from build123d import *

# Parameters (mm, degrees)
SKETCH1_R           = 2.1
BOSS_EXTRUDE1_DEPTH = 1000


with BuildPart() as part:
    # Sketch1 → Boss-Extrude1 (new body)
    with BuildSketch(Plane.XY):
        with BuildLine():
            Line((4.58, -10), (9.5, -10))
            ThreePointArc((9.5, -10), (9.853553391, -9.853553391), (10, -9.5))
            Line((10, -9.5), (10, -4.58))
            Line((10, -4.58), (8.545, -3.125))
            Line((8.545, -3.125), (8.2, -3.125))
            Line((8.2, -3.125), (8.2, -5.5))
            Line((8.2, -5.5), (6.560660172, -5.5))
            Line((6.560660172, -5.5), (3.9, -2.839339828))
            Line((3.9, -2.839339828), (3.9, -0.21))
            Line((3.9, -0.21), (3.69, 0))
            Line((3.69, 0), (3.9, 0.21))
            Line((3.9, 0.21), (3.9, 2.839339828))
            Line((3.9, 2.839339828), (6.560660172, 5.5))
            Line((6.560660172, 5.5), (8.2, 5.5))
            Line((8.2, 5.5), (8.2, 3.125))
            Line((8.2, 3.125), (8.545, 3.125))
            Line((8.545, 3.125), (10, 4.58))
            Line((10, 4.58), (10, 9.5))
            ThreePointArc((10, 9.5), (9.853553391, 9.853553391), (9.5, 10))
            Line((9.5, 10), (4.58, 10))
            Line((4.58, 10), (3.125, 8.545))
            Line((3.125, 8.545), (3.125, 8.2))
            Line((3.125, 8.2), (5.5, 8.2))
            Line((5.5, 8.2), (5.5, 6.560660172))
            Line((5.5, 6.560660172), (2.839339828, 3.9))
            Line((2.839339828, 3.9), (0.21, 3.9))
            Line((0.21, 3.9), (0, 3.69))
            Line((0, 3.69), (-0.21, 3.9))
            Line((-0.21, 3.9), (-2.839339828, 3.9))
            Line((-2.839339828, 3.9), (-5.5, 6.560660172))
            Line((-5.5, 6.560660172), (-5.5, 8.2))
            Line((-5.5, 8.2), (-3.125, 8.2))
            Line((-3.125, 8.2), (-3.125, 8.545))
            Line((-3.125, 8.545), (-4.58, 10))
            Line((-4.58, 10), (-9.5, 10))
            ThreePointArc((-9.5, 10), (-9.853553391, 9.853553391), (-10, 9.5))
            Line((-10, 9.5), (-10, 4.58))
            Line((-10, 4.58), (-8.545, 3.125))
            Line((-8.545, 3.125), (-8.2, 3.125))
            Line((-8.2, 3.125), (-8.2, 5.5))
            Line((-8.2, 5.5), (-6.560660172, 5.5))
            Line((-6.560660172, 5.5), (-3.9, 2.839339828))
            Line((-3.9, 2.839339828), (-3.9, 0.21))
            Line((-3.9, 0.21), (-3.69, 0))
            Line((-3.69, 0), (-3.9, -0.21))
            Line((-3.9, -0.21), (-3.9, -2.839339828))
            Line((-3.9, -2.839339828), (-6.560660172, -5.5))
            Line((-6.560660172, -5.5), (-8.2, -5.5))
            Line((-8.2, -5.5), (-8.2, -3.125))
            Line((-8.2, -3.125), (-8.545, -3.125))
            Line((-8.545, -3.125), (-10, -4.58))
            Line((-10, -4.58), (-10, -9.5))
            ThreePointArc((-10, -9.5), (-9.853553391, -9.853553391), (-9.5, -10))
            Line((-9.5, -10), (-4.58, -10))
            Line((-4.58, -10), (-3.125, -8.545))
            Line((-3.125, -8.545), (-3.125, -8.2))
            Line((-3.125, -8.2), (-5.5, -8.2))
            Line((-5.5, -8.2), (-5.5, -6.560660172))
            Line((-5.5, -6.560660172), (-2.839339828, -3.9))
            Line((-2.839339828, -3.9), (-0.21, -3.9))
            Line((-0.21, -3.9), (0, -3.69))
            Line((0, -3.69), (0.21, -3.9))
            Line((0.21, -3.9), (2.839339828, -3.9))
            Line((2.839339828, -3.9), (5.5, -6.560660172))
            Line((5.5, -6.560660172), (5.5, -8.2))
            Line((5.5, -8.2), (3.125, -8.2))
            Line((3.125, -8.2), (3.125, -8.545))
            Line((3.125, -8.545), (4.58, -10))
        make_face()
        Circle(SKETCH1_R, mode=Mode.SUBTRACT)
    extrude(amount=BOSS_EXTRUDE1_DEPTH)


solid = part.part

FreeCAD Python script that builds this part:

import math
import FreeCAD as App
import Part
import Sketcher

V = App.Vector
Q = App.Units.Quantity

doc = App.newDocument("Part")
body = doc.addObject("PartDesign::Body", "Body")

# Sketch on XY plane
sketch1 = doc.addObject("Sketcher::SketchObject", "Sketch")
body.addObject(sketch1)
sketch1.AttachmentSupport = (doc.XY_Plane, [""])
sketch1.MapMode = "FlatFace"
sketch1.addGeometry([
    Part.LineSegment(V(4.58, -10, 0), V(9.5, -10, 0)),  # 0
    Part.ArcOfCircle(Part.Circle(V(9.5, -9.5, 0), V(0, 0, 1), 0.5), math.radians(-90), math.radians(0)),  # 1
    Part.LineSegment(V(10, -9.5, 0), V(10, -4.58, 0)),  # 2
    Part.LineSegment(V(10, -4.58, 0), V(8.54, -3.12, 0)),  # 3
    Part.LineSegment(V(8.54, -3.12, 0), V(8.2, -3.12, 0)),  # 4
    Part.LineSegment(V(8.2, -3.12, 0), V(8.2, -5.5, 0)),  # 5
    Part.LineSegment(V(8.2, -5.5, 0), V(6.56, -5.5, 0)),  # 6
    Part.LineSegment(V(6.56, -5.5, 0), V(3.9, -2.84, 0)),  # 7
    Part.LineSegment(V(3.9, -2.84, 0), V(3.9, -0.21, 0)),  # 8
    Part.LineSegment(V(3.9, -0.21, 0), V(3.69, 0, 0)),  # 9
    Part.LineSegment(V(3.69, 0, 0), V(3.9, 0.21, 0)),  # 10
    Part.LineSegment(V(3.9, 0.21, 0), V(3.9, 2.84, 0)),  # 11
    Part.LineSegment(V(3.9, 2.84, 0), V(6.56, 5.5, 0)),  # 12
    Part.LineSegment(V(6.56, 5.5, 0), V(8.2, 5.5, 0)),  # 13
    Part.LineSegment(V(8.2, 5.5, 0), V(8.2, 3.12, 0)),  # 14
    Part.LineSegment(V(8.2, 3.12, 0), V(8.54, 3.12, 0)),  # 15
    Part.LineSegment(V(8.54, 3.12, 0), V(10, 4.58, 0)),  # 16
    Part.LineSegment(V(10, 4.58, 0), V(10, 9.5, 0)),  # 17
    Part.ArcOfCircle(Part.Circle(V(9.5, 9.5, 0), V(0, 0, 1), 0.5), math.radians(0), math.radians(90)),  # 18
    Part.LineSegment(V(9.5, 10, 0), V(4.58, 10, 0)),  # 19
    Part.LineSegment(V(4.58, 10, 0), V(3.12, 8.54, 0)),  # 20
    Part.LineSegment(V(3.12, 8.54, 0), V(3.12, 8.2, 0)),  # 21
    Part.LineSegment(V(3.12, 8.2, 0), V(5.5, 8.2, 0)),  # 22
    Part.LineSegment(V(5.5, 8.2, 0), V(5.5, 6.56, 0)),  # 23
    Part.LineSegment(V(5.5, 6.56, 0), V(2.84, 3.9, 0)),  # 24
    Part.LineSegment(V(2.84, 3.9, 0), V(0.21, 3.9, 0)),  # 25
    Part.LineSegment(V(0.21, 3.9, 0), V(0, 3.69, 0)),  # 26
    Part.LineSegment(V(0, 3.69, 0), V(-0.21, 3.9, 0)),  # 27
    Part.LineSegment(V(-0.21, 3.9, 0), V(-2.84, 3.9, 0)),  # 28
    Part.LineSegment(V(-2.84, 3.9, 0), V(-5.5, 6.56, 0)),  # 29
    Part.LineSegment(V(-5.5, 6.56, 0), V(-5.5, 8.2, 0)),  # 30
    Part.LineSegment(V(-5.5, 8.2, 0), V(-3.12, 8.2, 0)),  # 31
    Part.LineSegment(V(-3.12, 8.2, 0), V(-3.12, 8.54, 0)),  # 32
    Part.LineSegment(V(-3.12, 8.54, 0), V(-4.58, 10, 0)),  # 33
    Part.LineSegment(V(-4.58, 10, 0), V(-9.5, 10, 0)),  # 34
    Part.ArcOfCircle(Part.Circle(V(-9.5, 9.5, 0), V(0, 0, 1), 0.5), math.radians(90), math.radians(180)),  # 35
    Part.LineSegment(V(-10, 9.5, 0), V(-10, 4.58, 0)),  # 36
    Part.LineSegment(V(-10, 4.58, 0), V(-8.54, 3.12, 0)),  # 37
    Part.LineSegment(V(-8.54, 3.12, 0), V(-8.2, 3.12, 0)),  # 38
    Part.LineSegment(V(-8.2, 3.12, 0), V(-8.2, 5.5, 0)),  # 39
    Part.LineSegment(V(-8.2, 5.5, 0), V(-6.56, 5.5, 0)),  # 40
    Part.LineSegment(V(-6.56, 5.5, 0), V(-3.9, 2.84, 0)),  # 41
    Part.LineSegment(V(-3.9, 2.84, 0), V(-3.9, 0.21, 0)),  # 42
    Part.LineSegment(V(-3.9, 0.21, 0), V(-3.69, 0, 0)),  # 43
    Part.LineSegment(V(-3.69, 0, 0), V(-3.9, -0.21, 0)),  # 44
    Part.LineSegment(V(-3.9, -0.21, 0), V(-3.9, -2.84, 0)),  # 45
    Part.LineSegment(V(-3.9, -2.84, 0), V(-6.56, -5.5, 0)),  # 46
    Part.LineSegment(V(-6.56, -5.5, 0), V(-8.2, -5.5, 0)),  # 47
    Part.LineSegment(V(-8.2, -5.5, 0), V(-8.2, -3.12, 0)),  # 48
    Part.LineSegment(V(-8.2, -3.12, 0), V(-8.54, -3.12, 0)),  # 49
    Part.LineSegment(V(-8.54, -3.12, 0), V(-10, -4.58, 0)),  # 50
    Part.LineSegment(V(-10, -4.58, 0), V(-10, -9.5, 0)),  # 51
    Part.ArcOfCircle(Part.Circle(V(-9.5, -9.5, 0), V(0, 0, 1), 0.5), math.radians(180), math.radians(270)),  # 52
    Part.LineSegment(V(-9.5, -10, 0), V(-4.58, -10, 0)),  # 53
    Part.LineSegment(V(-4.58, -10, 0), V(-3.12, -8.54, 0)),  # 54
    Part.LineSegment(V(-3.12, -8.54, 0), V(-3.12, -8.2, 0)),  # 55
    Part.LineSegment(V(-3.12, -8.2, 0), V(-5.5, -8.2, 0)),  # 56
    Part.LineSegment(V(-5.5, -8.2, 0), V(-5.5, -6.56, 0)),  # 57
    Part.LineSegment(V(-5.5, -6.56, 0), V(-2.84, -3.9, 0)),  # 58
    Part.LineSegment(V(-2.84, -3.9, 0), V(-0.21, -3.9, 0)),  # 59
    Part.LineSegment(V(-0.21, -3.9, 0), V(0, -3.69, 0)),  # 60
    Part.LineSegment(V(0, -3.69, 0), V(0.21, -3.9, 0)),  # 61
    Part.LineSegment(V(0.21, -3.9, 0), V(2.84, -3.9, 0)),  # 62
    Part.LineSegment(V(2.84, -3.9, 0), V(5.5, -6.56, 0)),  # 63
    Part.LineSegment(V(5.5, -6.56, 0), V(5.5, -8.2, 0)),  # 64
    Part.LineSegment(V(5.5, -8.2, 0), V(3.12, -8.2, 0)),  # 65
    Part.LineSegment(V(3.12, -8.2, 0), V(3.12, -8.54, 0)),  # 66
    Part.LineSegment(V(3.12, -8.54, 0), V(4.58, -10, 0)),  # 67
    Part.Circle(V(0, 0, 0), V(0, 0, 1), 2.1),  # 68
], False)
sketch1.addConstraint([
    Sketcher.Constraint("Tangent", 0, 2, 1, 1),
    Sketcher.Constraint("Tangent", 1, 2, 2, 1),
    Sketcher.Constraint("Coincident", 2, 2, 3, 1),
    Sketcher.Constraint("Coincident", 3, 2, 4, 1),
    Sketcher.Constraint("Coincident", 4, 2, 5, 1),
    Sketcher.Constraint("Coincident", 5, 2, 6, 1),
    Sketcher.Constraint("Coincident", 6, 2, 7, 1),
    Sketcher.Constraint("Coincident", 7, 2, 8, 1),
    Sketcher.Constraint("Coincident", 8, 2, 9, 1),
    Sketcher.Constraint("Coincident", 9, 2, 10, 1),
    Sketcher.Constraint("Coincident", 10, 2, 11, 1),
    Sketcher.Constraint("Coincident", 11, 2, 12, 1),
    Sketcher.Constraint("Coincident", 12, 2, 13, 1),
    Sketcher.Constraint("Coincident", 13, 2, 14, 1),
    Sketcher.Constraint("Coincident", 14, 2, 15, 1),
    Sketcher.Constraint("Coincident", 15, 2, 16, 1),
    Sketcher.Constraint("Coincident", 16, 2, 17, 1),
    Sketcher.Constraint("Tangent", 17, 2, 18, 1),
    Sketcher.Constraint("Tangent", 18, 2, 19, 1),
    Sketcher.Constraint("Coincident", 19, 2, 20, 1),
    Sketcher.Constraint("Coincident", 20, 2, 21, 1),
    Sketcher.Constraint("Coincident", 21, 2, 22, 1),
    Sketcher.Constraint("Coincident", 22, 2, 23, 1),
    Sketcher.Constraint("Coincident", 23, 2, 24, 1),
    Sketcher.Constraint("Coincident", 24, 2, 25, 1),
    Sketcher.Constraint("Coincident", 25, 2, 26, 1),
    Sketcher.Constraint("Coincident", 26, 2, 27, 1),
    Sketcher.Constraint("Coincident", 27, 2, 28, 1),
    Sketcher.Constraint("Coincident", 28, 2, 29, 1),
    Sketcher.Constraint("Coincident", 29, 2, 30, 1),
    Sketcher.Constraint("Coincident", 30, 2, 31, 1),
    Sketcher.Constraint("Coincident", 31, 2, 32, 1),
    Sketcher.Constraint("Coincident", 32, 2, 33, 1),
    Sketcher.Constraint("Coincident", 33, 2, 34, 1),
    Sketcher.Constraint("Tangent", 34, 2, 35, 1),
    Sketcher.Constraint("Tangent", 35, 2, 36, 1),
    Sketcher.Constraint("Coincident", 36, 2, 37, 1),
    Sketcher.Constraint("Coincident", 37, 2, 38, 1),
    Sketcher.Constraint("Coincident", 38, 2, 39, 1),
    Sketcher.Constraint("Coincident", 39, 2, 40, 1),
    Sketcher.Constraint("Coincident", 40, 2, 41, 1),
    Sketcher.Constraint("Coincident", 41, 2, 42, 1),
    Sketcher.Constraint("Coincident", 42, 2, 43, 1),
    Sketcher.Constraint("Coincident", 43, 2, 44, 1),
    Sketcher.Constraint("Coincident", 44, 2, 45, 1),
    Sketcher.Constraint("Coincident", 45, 2, 46, 1),
    Sketcher.Constraint("Coincident", 46, 2, 47, 1),
    Sketcher.Constraint("Coincident", 47, 2, 48, 1),
    Sketcher.Constraint("Coincident", 48, 2, 49, 1),
    Sketcher.Constraint("Coincident", 49, 2, 50, 1),
    Sketcher.Constraint("Coincident", 50, 2, 51, 1),
    Sketcher.Constraint("Tangent", 51, 2, 52, 1),
    Sketcher.Constraint("Tangent", 52, 2, 53, 1),
    Sketcher.Constraint("Coincident", 53, 2, 54, 1),
    Sketcher.Constraint("Coincident", 54, 2, 55, 1),
    Sketcher.Constraint("Coincident", 55, 2, 56, 1),
    Sketcher.Constraint("Coincident", 56, 2, 57, 1),
    Sketcher.Constraint("Coincident", 57, 2, 58, 1),
    Sketcher.Constraint("Coincident", 58, 2, 59, 1),
    Sketcher.Constraint("Coincident", 59, 2, 60, 1),
    Sketcher.Constraint("Coincident", 60, 2, 61, 1),
    Sketcher.Constraint("Coincident", 61, 2, 62, 1),
    Sketcher.Constraint("Coincident", 62, 2, 63, 1),
    Sketcher.Constraint("Coincident", 63, 2, 64, 1),
    Sketcher.Constraint("Coincident", 64, 2, 65, 1),
    Sketcher.Constraint("Coincident", 65, 2, 66, 1),
    Sketcher.Constraint("Coincident", 66, 2, 67, 1),
    Sketcher.Constraint("Coincident", 67, 2, 0, 1),
    Sketcher.Constraint("Horizontal", 0),
    Sketcher.Constraint("Vertical", 2),
    Sketcher.Constraint("Horizontal", 4),
    Sketcher.Constraint("Vertical", 5),
    Sketcher.Constraint("Horizontal", 6),
    Sketcher.Constraint("Vertical", 8),
    Sketcher.Constraint("Vertical", 11),
    Sketcher.Constraint("Horizontal", 13),
    Sketcher.Constraint("Vertical", 14),
    Sketcher.Constraint("Horizontal", 15),
    Sketcher.Constraint("Vertical", 17),
    Sketcher.Constraint("Horizontal", 19),
    Sketcher.Constraint("Vertical", 21),
    Sketcher.Constraint("Horizontal", 22),
    Sketcher.Constraint("Vertical", 23),
    Sketcher.Constraint("Horizontal", 25),
    Sketcher.Constraint("Horizontal", 28),
    Sketcher.Constraint("Vertical", 30),
    Sketcher.Constraint("Horizontal", 31),
    Sketcher.Constraint("Vertical", 32),
    Sketcher.Constraint("Horizontal", 34),
    Sketcher.Constraint("Vertical", 36),
    Sketcher.Constraint("Horizontal", 38),
    Sketcher.Constraint("Vertical", 39),
    Sketcher.Constraint("Horizontal", 40),
    Sketcher.Constraint("Vertical", 42),
    Sketcher.Constraint("Vertical", 45),
    Sketcher.Constraint("Horizontal", 47),
    Sketcher.Constraint("Vertical", 48),
    Sketcher.Constraint("Horizontal", 49),
    Sketcher.Constraint("Vertical", 51),
    Sketcher.Constraint("Horizontal", 53),
    Sketcher.Constraint("Vertical", 55),
    Sketcher.Constraint("Horizontal", 56),
    Sketcher.Constraint("Vertical", 57),
    Sketcher.Constraint("Horizontal", 59),
    Sketcher.Constraint("Horizontal", 62),
    Sketcher.Constraint("Vertical", 64),
    Sketcher.Constraint("Horizontal", 65),
    Sketcher.Constraint("Vertical", 66),
    Sketcher.Constraint("Coincident", 68, 3, -1, 1),
    Sketcher.Constraint("Equal", 1, 18),
    Sketcher.Constraint("Equal", 18, 35),
    Sketcher.Constraint("Equal", 35, 52),
    Sketcher.Constraint("Symmetric", 1, 3, 35, 3, -1, 1),
    Sketcher.Constraint("Symmetric", 18, 3, 52, 3, -1, 1),
    Sketcher.Constraint("Symmetric", 3, 2, 37, 2, -1, 1),
    Sketcher.Constraint("Symmetric", 5, 2, 39, 2, -1, 1),
    Sketcher.Constraint("Symmetric", 7, 2, 41, 2, -1, 1),
    Sketcher.Constraint("Symmetric", 9, 2, 43, 2, -1, 1),
    Sketcher.Constraint("Symmetric", 10, 2, 44, 2, -1, 1),
    Sketcher.Constraint("Symmetric", 12, 2, 46, 2, -1, 1),
    Sketcher.Constraint("Symmetric", 14, 2, 48, 2, -1, 1),
    Sketcher.Constraint("Symmetric", 20, 2, 54, 2, -1, 1),
    Sketcher.Constraint("Symmetric", 22, 2, 56, 2, -1, 1),
    Sketcher.Constraint("Symmetric", 24, 2, 58, 2, -1, 1),
    Sketcher.Constraint("Symmetric", 26, 2, 60, 2, -1, 1),
    Sketcher.Constraint("Symmetric", 27, 2, 61, 2, -1, 1),
    Sketcher.Constraint("Symmetric", 29, 2, 63, 2, -1, 1),
    Sketcher.Constraint("Symmetric", 31, 2, 65, 2, -1, 1),
    Sketcher.Constraint("Symmetric", 18, 3, 35, 3, -2),
    Sketcher.Constraint("Symmetric", 25, 2, 27, 2, -2),
    Sketcher.Constraint("Symmetric", 23, 2, 29, 2, -2),
    Sketcher.Constraint("Symmetric", 21, 2, 31, 2, -2),
    Sketcher.Constraint("Symmetric", 15, 2, 37, 2, -2),
    Sketcher.Constraint("Symmetric", 13, 2, 39, 2, -2),
    Sketcher.Constraint("Symmetric", 11, 2, 41, 2, -2),
    Sketcher.Constraint("PointOnObject", 9, 2, -1),
    Sketcher.Constraint("PointOnObject", 26, 2, -2),
    Sketcher.Constraint("Parallel", 3, 7),
    Sketcher.Constraint("Parallel", 7, 9),
    Sketcher.Constraint("Perpendicular", 9, 10),
    Sketcher.Constraint("Parallel", 10, 12),
    Sketcher.Constraint("Parallel", 12, 16),
    Sketcher.Constraint("Parallel", 16, 20),
    Sketcher.Constraint("Parallel", 20, 24),
    Sketcher.Constraint("Parallel", 24, 26),
    Sketcher.Constraint("Perpendicular", 26, 27),
    Sketcher.Constraint("Parallel", 27, 29),
    Sketcher.Constraint("Parallel", 29, 33),
    Sketcher.Constraint("Parallel", 33, 37),
    Sketcher.Constraint("Parallel", 37, 41),
    Sketcher.Constraint("Parallel", 41, 43),
    Sketcher.Constraint("Parallel", 44, 46),
    Sketcher.Constraint("Parallel", 46, 50),
    Sketcher.Constraint("Parallel", 50, 54),
    Sketcher.Constraint("Parallel", 54, 58),
    Sketcher.Constraint("Parallel", 58, 60),
    Sketcher.Constraint("Parallel", 61, 63),
    Sketcher.Constraint("Parallel", 63, 67),
    Sketcher.Constraint("Horizontal", 20, 2, 32, 2),
    Sketcher.Constraint("Horizontal", 2, 2, 50, 2),
    Sketcher.Constraint("Horizontal", 54, 2, 66, 2),
    Sketcher.Constraint("Equal", 53, 2),
    Sketcher.Constraint("Equal", 65, 5),
    Sketcher.Constraint("Equal", 62, 8),
    Sketcher.Constraint("Equal", 49, 21),
    Sketcher.Constraint("Equal", 47, 23),
    Sketcher.Constraint("Equal", 16, 20),
    Sketcher.Constraint("Equal", 12, 24),
    Sketcher.Constraint("Equal", 10, 26),
    Sketcher.Constraint("Diameter", 68, Q("4.2 mm")),
    Sketcher.Constraint("Radius", 1, Q("0.5 mm")),
    Sketcher.Constraint("DistanceY", 0, 2, -1, 1, Q("10 mm")),
    Sketcher.Constraint("DistanceX", 0, 1, 0, 2, Q("4.92 mm")),
    Sketcher.Constraint("DistanceX", -1, 1, 4, 2, Q("8.2 mm")),
    Sketcher.Constraint("DistanceY", 5, 2, -1, 1, Q("5.5 mm")),
    Sketcher.Constraint("DistanceX", -1, 1, 7, 2, Q("3.9 mm")),
    Sketcher.Constraint("DistanceX", 4, 2, 4, 1, Q("0.345 mm")),
    Sketcher.Constraint("DistanceY", 8, 2, -1, 1, Q("0.21 mm")),
    Sketcher.Constraint("DistanceX", 6, 2, 6, 1, Q("1.63934 mm")),
])
pad1 = doc.addObject("PartDesign::Pad", "Pad")
body.addObject(pad1)
pad1.Profile = sketch1
pad1.Length = 1000

doc.recompute()
